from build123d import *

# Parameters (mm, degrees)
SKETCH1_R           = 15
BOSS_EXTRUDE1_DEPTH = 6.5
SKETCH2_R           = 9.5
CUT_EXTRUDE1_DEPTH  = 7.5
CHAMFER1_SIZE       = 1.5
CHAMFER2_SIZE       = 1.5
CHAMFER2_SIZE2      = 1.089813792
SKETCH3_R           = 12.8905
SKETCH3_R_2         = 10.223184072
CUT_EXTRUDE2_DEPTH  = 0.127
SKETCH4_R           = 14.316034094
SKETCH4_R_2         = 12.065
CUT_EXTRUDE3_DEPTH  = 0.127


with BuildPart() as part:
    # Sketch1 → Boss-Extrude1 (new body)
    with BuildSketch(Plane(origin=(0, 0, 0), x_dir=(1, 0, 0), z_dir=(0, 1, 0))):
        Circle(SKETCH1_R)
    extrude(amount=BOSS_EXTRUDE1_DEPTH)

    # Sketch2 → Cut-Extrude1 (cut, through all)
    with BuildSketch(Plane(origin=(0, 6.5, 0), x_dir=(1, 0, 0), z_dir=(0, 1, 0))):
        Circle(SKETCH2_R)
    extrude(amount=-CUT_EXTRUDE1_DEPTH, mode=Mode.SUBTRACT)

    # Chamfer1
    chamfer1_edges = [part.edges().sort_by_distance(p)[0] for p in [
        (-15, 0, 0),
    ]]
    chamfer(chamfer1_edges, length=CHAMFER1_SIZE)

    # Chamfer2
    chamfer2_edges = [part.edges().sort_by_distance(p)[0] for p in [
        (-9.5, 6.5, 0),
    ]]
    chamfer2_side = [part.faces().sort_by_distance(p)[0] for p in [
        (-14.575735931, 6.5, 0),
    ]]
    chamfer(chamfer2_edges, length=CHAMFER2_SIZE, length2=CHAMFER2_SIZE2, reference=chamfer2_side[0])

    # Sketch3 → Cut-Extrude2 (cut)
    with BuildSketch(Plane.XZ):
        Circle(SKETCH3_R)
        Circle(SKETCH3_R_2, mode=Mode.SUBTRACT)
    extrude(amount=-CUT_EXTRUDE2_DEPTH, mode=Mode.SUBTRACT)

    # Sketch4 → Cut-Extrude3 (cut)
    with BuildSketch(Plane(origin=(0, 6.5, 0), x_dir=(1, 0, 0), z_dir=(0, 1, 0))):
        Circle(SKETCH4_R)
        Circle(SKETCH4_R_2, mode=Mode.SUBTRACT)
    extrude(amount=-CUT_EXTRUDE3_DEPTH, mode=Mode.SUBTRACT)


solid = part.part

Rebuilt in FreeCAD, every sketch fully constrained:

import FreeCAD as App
import Part
import Sketcher
from FreeCAD import Vector
Q = App.Units.Quantity


def edges_at(feature, points):
    """Names of the edges that pass closest to the given points."""
    edges = feature.Shape.Edges
    near = lambda p: min(range(len(edges)), key=lambda i: edges[i].distToShape(Part.Vertex(*p))[0])
    return sorted({f"Edge{near(p) + 1}" for p in points})

doc = App.newDocument("Part")
body = doc.addObject("PartDesign::Body", "Body")

sketch1 = body.newObject("Sketcher::SketchObject", "Sketch")
sketch1.AttachmentSupport = (doc.getObject("XZ_Plane"), [""])
sketch1.MapMode = "FlatFace"
sketch1.addGeometry(Part.Circle(Vector(0, 0, 0), Vector(0, 0, 1), 15), False)
sketch1.addConstraint(Sketcher.Constraint("Coincident", 0, 3, -1, 1))
sketch1.addConstraint(Sketcher.Constraint("Diameter", 0, Q("30 mm")))
pad1 = body.newObject("PartDesign::Pad", "Pad")
pad1.Profile = sketch1
pad1.Length = 6.5
pad1.Reversed = True

sketch2 = body.newObject("Sketcher::SketchObject", "Sketch001")
sketch2.AttachmentSupport = (doc.getObject("XZ_Plane"), [""])
sketch2.MapMode = "FlatFace"
sketch2.AttachmentOffset = App.Placement(Vector(0, 0, -6.5), App.Rotation())
sketch2.addGeometry(Part.Circle(Vector(0, 0, 0), Vector(0, 0, 1), 10), False)
sketch2.addConstraint(Sketcher.Constraint("Coincident", 0, 3, -1, 1))
sketch2.addConstraint(Sketcher.Constraint("Diameter", 0, Q("19 mm")))
pocket1 = body.newObject("PartDesign::Pocket", "Pocket")
pocket1.Profile = sketch2
pocket1.Type = "ThroughAll"
pocket1.Reversed = True
doc.recompute()

chamfer = body.newObject("PartDesign::Chamfer", "Chamfer")
chamfer.Base = (pocket1, edges_at(pocket1, [(-15, 0, 0)]))
chamfer.Size = 1.5
doc.recompute()

chamfer2 = body.newObject("PartDesign::Chamfer", "Chamfer001")
chamfer2.Base = (chamfer, edges_at(chamfer, [(-9.5, 6.5, 0)]))
chamfer2.ChamferType = "Two distances"
chamfer2.Size = 1.5
chamfer2.Size2 = 1.089814

sketch3 = body.newObject("Sketcher::SketchObject", "Sketch002")
sketch3.AttachmentSupport = (doc.getObject("XZ_Plane"), [""])
sketch3.MapMode = "FlatFace"
sketch3.addGeometry(Part.Circle(Vector(0, 0, 0), Vector(0, 0, 1), 13), False)
sketch3.addGeometry(Part.Circle(Vector(0, 0, 0), Vector(0, 0, 1), 10), False)
sketch3.addConstraint(Sketcher.Constraint("Coincident", 0, 3, -1, 1))
sketch3.addConstraint(Sketcher.Constraint("Coincident", 1, 3, -1, 1))
sketch3.addConstraint(Sketcher.Constraint("Diameter", 0, Q("25.781 mm")))
sketch3.addConstraint(Sketcher.Constraint("Diameter", 1, Q("20.446368 mm")))
pocket2 = body.newObject("PartDesign::Pocket", "Pocket001")
pocket2.Profile = sketch3
pocket2.Length = 0.127

sketch4 = body.newObject("Sketcher::SketchObject", "Sketch003")
sketch4.AttachmentSupport = (doc.getObject("XZ_Plane"), [""])
sketch4.MapMode = "FlatFace"
sketch4.AttachmentOffset = App.Placement(Vector(0, 0, -6.5), App.Rotation())
sketch4.addGeometry(Part.Circle(Vector(0, 0, 0), Vector(0, 0, 1), 14), False)
sketch4.addGeometry(Part.Circle(Vector(0, 0, 0), Vector(0, 0, 1), 12), False)
sketch4.addConstraint(Sketcher.Constraint("Coincident", 0, 3, -1, 1))
sketch4.addConstraint(Sketcher.Constraint("Coincident", 1, 3, -1, 1))
sketch4.addConstraint(Sketcher.Constraint("Diameter", 1, Q("24.13 mm")))
sketch4.addConstraint(Sketcher.Constraint("Diameter", 0, Q("28.632068 mm")))
pocket3 = body.newObject("PartDesign::Pocket", "Pocket002")
pocket3.Profile = sketch4
pocket3.Length = 0.127
pocket3.Reversed = True

doc.recompute()
